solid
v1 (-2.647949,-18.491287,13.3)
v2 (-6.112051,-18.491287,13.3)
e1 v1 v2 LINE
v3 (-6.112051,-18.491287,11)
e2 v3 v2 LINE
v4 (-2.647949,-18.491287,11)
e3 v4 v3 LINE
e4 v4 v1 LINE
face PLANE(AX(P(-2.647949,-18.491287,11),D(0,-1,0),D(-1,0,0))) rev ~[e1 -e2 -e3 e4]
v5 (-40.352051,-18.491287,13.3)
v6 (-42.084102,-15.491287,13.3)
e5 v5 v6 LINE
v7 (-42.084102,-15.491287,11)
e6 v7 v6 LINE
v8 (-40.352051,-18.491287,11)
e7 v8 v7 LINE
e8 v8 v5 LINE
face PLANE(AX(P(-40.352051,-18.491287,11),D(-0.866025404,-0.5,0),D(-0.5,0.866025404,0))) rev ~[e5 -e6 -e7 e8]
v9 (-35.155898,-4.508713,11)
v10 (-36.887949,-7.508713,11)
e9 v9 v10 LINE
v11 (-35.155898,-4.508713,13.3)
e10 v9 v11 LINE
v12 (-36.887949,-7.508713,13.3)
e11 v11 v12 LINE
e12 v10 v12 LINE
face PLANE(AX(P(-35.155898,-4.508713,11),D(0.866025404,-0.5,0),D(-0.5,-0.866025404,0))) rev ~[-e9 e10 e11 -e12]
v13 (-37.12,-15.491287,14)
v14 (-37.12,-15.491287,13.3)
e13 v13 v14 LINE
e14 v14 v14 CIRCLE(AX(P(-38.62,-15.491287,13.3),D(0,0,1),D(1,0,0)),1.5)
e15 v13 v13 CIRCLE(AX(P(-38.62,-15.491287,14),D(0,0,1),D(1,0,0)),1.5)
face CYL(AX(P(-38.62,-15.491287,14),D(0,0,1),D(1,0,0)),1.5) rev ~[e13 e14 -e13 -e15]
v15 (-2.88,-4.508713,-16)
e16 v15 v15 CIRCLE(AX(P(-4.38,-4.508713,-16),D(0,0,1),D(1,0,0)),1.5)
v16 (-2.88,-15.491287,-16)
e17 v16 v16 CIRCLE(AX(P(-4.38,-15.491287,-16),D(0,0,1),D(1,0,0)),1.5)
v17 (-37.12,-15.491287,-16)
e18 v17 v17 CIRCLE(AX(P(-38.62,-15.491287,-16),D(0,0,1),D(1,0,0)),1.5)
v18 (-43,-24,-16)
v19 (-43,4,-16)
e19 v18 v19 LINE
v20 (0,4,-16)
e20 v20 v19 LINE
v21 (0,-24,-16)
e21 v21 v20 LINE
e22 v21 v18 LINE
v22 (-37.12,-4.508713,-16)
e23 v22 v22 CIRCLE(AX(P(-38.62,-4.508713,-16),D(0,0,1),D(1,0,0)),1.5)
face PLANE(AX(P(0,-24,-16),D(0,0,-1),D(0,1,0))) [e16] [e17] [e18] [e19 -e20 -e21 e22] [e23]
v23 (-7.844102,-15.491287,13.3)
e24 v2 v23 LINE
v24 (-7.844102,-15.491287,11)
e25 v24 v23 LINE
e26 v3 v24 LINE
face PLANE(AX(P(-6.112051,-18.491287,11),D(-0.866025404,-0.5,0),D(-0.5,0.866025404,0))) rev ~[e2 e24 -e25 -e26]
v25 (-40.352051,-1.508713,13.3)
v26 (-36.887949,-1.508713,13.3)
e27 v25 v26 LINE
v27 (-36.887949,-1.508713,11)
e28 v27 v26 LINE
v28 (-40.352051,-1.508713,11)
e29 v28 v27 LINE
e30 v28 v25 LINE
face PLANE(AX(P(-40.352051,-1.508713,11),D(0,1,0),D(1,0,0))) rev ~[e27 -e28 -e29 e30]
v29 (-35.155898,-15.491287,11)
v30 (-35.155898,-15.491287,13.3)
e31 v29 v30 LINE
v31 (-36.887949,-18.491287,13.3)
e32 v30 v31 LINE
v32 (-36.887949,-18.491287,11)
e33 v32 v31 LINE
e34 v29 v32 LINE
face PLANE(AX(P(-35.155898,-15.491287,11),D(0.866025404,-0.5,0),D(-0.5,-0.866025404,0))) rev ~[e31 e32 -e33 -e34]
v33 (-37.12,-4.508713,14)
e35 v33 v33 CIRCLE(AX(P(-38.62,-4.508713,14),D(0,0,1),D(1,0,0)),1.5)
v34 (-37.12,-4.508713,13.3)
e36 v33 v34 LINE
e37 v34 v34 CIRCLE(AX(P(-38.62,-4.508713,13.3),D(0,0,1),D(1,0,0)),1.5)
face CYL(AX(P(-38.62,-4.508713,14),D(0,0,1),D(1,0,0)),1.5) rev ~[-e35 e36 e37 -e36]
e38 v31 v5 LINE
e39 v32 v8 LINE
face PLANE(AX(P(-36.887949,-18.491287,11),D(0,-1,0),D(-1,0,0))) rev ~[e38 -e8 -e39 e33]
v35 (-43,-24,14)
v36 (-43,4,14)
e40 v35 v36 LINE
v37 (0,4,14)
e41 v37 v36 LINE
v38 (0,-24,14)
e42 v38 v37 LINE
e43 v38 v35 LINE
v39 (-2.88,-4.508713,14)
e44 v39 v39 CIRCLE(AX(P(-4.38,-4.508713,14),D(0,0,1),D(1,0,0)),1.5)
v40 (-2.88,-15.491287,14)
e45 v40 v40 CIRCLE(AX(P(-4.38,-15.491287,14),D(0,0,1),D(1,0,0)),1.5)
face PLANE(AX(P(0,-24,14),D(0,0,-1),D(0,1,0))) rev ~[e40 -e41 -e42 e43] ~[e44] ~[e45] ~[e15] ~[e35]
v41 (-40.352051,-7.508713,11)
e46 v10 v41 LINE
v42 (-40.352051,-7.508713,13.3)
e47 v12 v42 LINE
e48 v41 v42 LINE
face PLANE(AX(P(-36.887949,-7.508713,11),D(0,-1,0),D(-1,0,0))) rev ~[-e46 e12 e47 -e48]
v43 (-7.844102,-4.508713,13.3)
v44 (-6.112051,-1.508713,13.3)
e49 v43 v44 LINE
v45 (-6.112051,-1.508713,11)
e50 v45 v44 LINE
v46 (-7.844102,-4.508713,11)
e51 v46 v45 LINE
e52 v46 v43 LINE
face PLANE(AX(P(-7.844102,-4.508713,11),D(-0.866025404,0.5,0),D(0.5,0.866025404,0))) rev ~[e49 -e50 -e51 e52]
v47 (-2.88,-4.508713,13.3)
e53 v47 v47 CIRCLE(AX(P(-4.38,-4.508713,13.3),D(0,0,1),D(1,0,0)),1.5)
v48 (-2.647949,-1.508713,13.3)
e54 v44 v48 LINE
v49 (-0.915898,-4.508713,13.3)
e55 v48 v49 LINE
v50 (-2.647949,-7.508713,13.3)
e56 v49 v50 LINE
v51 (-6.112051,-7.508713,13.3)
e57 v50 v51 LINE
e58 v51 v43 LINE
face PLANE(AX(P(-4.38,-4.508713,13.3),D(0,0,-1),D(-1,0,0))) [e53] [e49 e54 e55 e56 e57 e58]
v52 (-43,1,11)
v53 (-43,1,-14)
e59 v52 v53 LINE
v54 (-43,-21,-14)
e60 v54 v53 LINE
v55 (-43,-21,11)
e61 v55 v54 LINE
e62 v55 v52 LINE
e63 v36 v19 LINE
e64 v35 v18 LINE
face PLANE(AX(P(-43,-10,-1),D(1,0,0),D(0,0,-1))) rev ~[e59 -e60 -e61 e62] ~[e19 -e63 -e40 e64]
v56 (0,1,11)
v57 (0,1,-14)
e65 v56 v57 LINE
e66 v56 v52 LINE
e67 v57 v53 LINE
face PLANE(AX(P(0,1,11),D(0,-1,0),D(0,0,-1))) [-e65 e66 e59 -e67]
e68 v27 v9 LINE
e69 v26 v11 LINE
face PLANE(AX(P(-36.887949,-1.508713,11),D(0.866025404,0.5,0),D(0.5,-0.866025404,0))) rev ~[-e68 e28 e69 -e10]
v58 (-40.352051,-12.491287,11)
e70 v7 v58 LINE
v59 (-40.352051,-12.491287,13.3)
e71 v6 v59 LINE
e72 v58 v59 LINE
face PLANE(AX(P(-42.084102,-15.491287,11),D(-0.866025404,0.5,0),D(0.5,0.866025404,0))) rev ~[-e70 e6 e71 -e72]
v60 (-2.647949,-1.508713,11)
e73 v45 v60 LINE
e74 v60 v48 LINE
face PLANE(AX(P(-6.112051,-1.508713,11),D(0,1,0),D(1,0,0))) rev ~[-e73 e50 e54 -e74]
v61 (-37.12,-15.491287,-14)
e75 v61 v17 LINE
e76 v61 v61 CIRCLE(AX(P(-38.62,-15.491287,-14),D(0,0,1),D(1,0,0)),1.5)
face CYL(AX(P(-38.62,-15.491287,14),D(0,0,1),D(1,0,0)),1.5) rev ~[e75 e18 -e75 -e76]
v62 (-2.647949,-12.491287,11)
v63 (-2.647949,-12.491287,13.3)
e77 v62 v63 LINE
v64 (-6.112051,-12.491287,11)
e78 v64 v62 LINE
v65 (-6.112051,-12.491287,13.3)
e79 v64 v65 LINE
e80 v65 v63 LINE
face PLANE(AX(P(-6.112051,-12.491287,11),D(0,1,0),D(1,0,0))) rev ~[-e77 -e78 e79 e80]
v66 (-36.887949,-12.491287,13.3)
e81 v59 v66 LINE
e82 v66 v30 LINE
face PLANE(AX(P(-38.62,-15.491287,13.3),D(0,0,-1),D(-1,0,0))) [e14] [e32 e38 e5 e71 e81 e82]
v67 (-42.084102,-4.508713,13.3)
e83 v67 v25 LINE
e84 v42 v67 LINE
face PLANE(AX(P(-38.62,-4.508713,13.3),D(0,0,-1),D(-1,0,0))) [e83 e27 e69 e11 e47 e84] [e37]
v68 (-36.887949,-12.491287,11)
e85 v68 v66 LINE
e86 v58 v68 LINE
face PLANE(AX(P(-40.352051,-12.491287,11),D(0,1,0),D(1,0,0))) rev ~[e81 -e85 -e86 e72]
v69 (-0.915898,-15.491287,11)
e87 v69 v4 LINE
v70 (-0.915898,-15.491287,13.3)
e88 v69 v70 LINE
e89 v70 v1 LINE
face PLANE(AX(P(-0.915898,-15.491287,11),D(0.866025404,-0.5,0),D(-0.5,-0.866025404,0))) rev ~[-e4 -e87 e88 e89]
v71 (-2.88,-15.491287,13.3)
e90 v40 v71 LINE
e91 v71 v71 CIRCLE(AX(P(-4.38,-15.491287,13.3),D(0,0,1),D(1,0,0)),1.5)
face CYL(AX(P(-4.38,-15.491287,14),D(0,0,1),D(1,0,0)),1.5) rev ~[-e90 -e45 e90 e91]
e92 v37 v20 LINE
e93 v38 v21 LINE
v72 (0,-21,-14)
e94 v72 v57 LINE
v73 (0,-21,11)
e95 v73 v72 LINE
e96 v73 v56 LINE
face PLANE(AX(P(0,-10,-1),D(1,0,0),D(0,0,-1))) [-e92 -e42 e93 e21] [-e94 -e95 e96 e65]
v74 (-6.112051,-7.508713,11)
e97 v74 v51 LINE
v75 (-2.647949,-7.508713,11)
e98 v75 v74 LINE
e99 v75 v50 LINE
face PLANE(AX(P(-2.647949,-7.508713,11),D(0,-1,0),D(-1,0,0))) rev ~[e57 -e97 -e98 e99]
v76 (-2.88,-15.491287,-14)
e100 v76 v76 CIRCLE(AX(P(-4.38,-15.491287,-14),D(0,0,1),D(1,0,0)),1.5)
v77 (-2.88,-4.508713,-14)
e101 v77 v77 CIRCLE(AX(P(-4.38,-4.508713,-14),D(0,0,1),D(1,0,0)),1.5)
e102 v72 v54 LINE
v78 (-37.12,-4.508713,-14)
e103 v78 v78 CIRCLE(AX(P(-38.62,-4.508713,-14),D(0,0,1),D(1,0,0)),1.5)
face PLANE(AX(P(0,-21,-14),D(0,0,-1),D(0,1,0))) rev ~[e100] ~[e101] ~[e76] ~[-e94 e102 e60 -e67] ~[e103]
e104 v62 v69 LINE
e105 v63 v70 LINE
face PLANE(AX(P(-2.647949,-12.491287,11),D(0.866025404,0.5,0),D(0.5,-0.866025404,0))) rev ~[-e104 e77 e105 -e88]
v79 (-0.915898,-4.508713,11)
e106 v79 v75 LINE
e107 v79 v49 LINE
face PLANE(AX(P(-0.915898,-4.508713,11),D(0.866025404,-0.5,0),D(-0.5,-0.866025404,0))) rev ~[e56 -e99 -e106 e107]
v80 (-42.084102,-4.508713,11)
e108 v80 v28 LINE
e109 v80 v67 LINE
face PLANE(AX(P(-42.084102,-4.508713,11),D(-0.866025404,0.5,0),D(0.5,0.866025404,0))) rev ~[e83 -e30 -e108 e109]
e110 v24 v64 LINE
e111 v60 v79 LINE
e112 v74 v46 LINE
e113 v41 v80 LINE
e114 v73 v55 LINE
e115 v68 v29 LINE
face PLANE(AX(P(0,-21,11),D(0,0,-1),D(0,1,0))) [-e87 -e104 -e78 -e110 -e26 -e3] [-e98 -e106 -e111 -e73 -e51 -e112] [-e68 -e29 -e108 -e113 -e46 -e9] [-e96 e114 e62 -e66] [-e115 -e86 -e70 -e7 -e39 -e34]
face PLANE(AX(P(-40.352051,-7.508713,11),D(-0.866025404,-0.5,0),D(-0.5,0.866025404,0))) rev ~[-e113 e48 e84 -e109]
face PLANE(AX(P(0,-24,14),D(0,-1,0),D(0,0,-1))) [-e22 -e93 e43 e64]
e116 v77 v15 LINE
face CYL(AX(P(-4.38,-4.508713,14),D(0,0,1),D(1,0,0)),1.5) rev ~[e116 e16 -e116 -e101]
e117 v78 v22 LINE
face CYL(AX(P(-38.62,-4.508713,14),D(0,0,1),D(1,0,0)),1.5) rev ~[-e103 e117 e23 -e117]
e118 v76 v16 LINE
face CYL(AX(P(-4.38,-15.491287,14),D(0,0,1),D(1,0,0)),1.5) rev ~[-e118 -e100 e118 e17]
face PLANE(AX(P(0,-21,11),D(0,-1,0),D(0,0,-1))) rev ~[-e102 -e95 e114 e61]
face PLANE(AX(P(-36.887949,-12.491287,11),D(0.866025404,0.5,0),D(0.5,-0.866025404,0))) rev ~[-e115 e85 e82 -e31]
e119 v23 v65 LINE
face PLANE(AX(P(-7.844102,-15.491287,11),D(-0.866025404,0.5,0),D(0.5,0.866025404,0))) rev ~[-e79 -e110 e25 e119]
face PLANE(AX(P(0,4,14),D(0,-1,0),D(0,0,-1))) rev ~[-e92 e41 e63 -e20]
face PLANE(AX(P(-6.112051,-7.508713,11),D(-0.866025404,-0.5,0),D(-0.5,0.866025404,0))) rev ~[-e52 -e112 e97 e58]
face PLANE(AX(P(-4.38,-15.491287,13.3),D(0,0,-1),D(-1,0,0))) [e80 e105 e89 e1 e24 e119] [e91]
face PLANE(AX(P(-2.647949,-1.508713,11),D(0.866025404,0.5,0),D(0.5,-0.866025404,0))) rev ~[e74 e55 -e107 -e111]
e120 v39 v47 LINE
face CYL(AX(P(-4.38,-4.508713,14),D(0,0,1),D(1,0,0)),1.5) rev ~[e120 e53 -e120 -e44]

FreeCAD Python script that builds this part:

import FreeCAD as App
import Part
import Sketcher
from FreeCAD import Vector
Q = App.Units.Quantity


def add_polygon(sketch, points):
    """Adds a closed chain of lines whose ends are joined by coincident constraints."""
    first, n = sketch.GeometryCount, len(points)
    for a, b in zip(points, points[1:] + points[:1]):
        sketch.addGeometry(Part.LineSegment(App.Vector(*a, 0), App.Vector(*b, 0)), False)
    for i in range(n):
        sketch.addConstraint(Sketcher.Constraint("Coincident", first + i, 2, first + (i + 1) % n, 1))

doc = App.newDocument("Part")
params = doc.addObject("Spreadsheet::Sheet", "Params")
for row, (alias, value) in enumerate([
    ("sketch1_width", "28 mm"),
    ("sketch1_width2", "22 mm"),
    ("sketch1_height", "30 mm"),
    ("sketch1_height2", "25 mm"),
    ("pad1_length", "43 mm"),
    ("sketch2_diameter", "3 mm"),
    ("pocket2_length", "2.3 mm"),
], start=1):
    params.set(f"A{row}", alias)
    params.set(f"B{row}", "=" + value)
    params.setAlias(f"B{row}", alias)

body = doc.addObject("PartDesign::Body", "Body")

sketch1 = doc.addObject("Sketcher::SketchObject", "Sketch")
body.addObject(sketch1)
sketch1.AttachmentSupport = (doc.YZ_Plane, [""])
sketch1.MapMode = "FlatFace"
add_polygon(sketch1, [(4, 14), (-24, 14), (-24, -16), (4, -16)])
add_polygon(sketch1, [(-21, -14), (-21, 11), (1, 11), (1, -14)])
sketch1.addConstraint([
    Sketcher.Constraint("Horizontal", 0),
    Sketcher.Constraint("Vertical", 1),
    Sketcher.Constraint("Horizontal", 2),
    Sketcher.Constraint("Vertical", 3),
    Sketcher.Constraint("Vertical", 4),
    Sketcher.Constraint("Horizontal", 5),
    Sketcher.Constraint("Vertical", 6),
    Sketcher.Constraint("Horizontal", 7),
    Sketcher.Constraint("DistanceX", 0, 2, 0, 1, 28.0),
    Sketcher.Constraint("DistanceX", 5, 1, 5, 2, 22.0),
    Sketcher.Constraint("DistanceY", 1, 2, 1, 1, 30.0),
    Sketcher.Constraint("DistanceY", 4, 1, 4, 2, 25.0),
    Sketcher.Constraint("DistanceX", 0, 2, -1, 1, 24.0),
    Sketcher.Constraint("DistanceY", -1, 1, 0, 2, 14.0),
    Sketcher.Constraint("DistanceX", 4, 2, -1, 1, 21.0),
    Sketcher.Constraint("DistanceY", -1, 1, 4, 2, 11.0),
])
sketch1.setExpression("Constraints[16]", "Params.sketch1_width")
sketch1.setExpression("Constraints[17]", "Params.sketch1_width2")
sketch1.setExpression("Constraints[18]", "Params.sketch1_height")
sketch1.setExpression("Constraints[19]", "Params.sketch1_height2")
pad1 = doc.addObject("PartDesign::Pad", "Pad")
body.addObject(pad1)
pad1.Profile = sketch1
pad1.setExpression("Length", "Params.pad1_length")
pad1.Reversed = True

sketch2 = doc.addObject("Sketcher::SketchObject", "Sketch001")
body.addObject(sketch2)
sketch2.AttachmentSupport = (doc.XY_Plane, [""])
sketch2.MapMode = "FlatFace"
sketch2.AttachmentOffset = App.Placement(Vector(0, 0, 14), App.Rotation())
sketch2.addGeometry([
    Part.Circle(Vector(-38.6, -4.5, 0), Vector(0, 0, 1), 1.5),
    Part.Circle(Vector(-4.4, -4.5, 0), Vector(0, 0, 1), 1.5),
    Part.Circle(Vector(-4.4, -15.5, 0), Vector(0, 0, 1), 1.5),
    Part.Circle(Vector(-38.6, -15.5, 0), Vector(0, 0, 1), 1.5),
], False)
sketch2.addConstraint([
    Sketcher.Constraint("Equal", 0, 1),
    Sketcher.Constraint("Equal", 1, 2),
    Sketcher.Constraint("Equal", 2, 3),
    Sketcher.Constraint("Horizontal", 0, 3, 1, 3),
    Sketcher.Constraint("Horizontal", 2, 3, 3, 3),
    Sketcher.Constraint("Vertical", 1, 3, 2, 3),
    Sketcher.Constraint("Vertical", 0, 3, 3, 3),
    Sketcher.Constraint("Diameter", 0, 3.0),
    Sketcher.Constraint("DistanceX", 0, 3, -1, 1, 38.62),
    Sketcher.Constraint("DistanceX", 1, 3, -1, 1, 4.38),
    Sketcher.Constraint("DistanceY", 0, 3, -1, 1, 4.508713),
    Sketcher.Constraint("DistanceY", 2, 3, -1, 1, 15.491287),
])
sketch2.setExpression("Constraints[7]", "Params.sketch2_diameter")
pocket1 = doc.addObject("PartDesign::Pocket", "Pocket")
body.addObject(pocket1)
pocket1.Profile = sketch2
pocket1.Type = "ThroughAll"

sketch3 = doc.addObject("Sketcher::SketchObject", "Sketch002")
body.addObject(sketch3)
sketch3.AttachmentSupport = (doc.XY_Plane, [""])
sketch3.MapMode = "FlatFace"
sketch3.AttachmentOffset = App.Placement(Vector(0, 0, 11), App.Rotation())
add_polygon(sketch3, [(-42.1, -4.5), (-40.4, -1.5), (-36.9, -1.5), (-35.2, -4.5), (-36.9, -7.5), (-40.4, -7.5)])
add_polygon(sketch3, [(-7.8, -4.5), (-6.1, -1.5), (-2.6, -1.5), (-0.9, -4.5), (-2.6, -7.5), (-6.1, -7.5)])
add_polygon(sketch3, [(-7.8, -15.5), (-6.1, -12.5), (-2.6, -12.5), (-0.9, -15.5), (-2.6, -18.5), (-6.1, -18.5)])
add_polygon(sketch3, [(-42.1, -15.5), (-40.4, -12.5), (-36.9, -12.5), (-35.2, -15.5), (-36.9, -18.5), (-40.4, -18.5)])
sketch3.addConstraint([
    Sketcher.Constraint("Horizontal", 1),
    Sketcher.Constraint("Horizontal", 4),
    Sketcher.Constraint("Horizontal", 7),
    Sketcher.Constraint("Horizontal", 10),
    Sketcher.Constraint("Horizontal", 13),
    Sketcher.Constraint("Horizontal", 16),
    Sketcher.Constraint("Horizontal", 19),
    Sketcher.Constraint("Horizontal", 22),
    Sketcher.Constraint("Parallel", 0, 3),
    Sketcher.Constraint("Parallel", 2, 5),
    Sketcher.Constraint("Parallel", 3, 6),
    Sketcher.Constraint("Parallel", 5, 8),
    Sketcher.Constraint("Parallel", 6, 9),
    Sketcher.Constraint("Parallel", 8, 11),
    Sketcher.Constraint("Parallel", 9, 12),
    Sketcher.Constraint("Parallel", 11, 14),
    Sketcher.Constraint("Parallel", 12, 15),
    Sketcher.Constraint("Parallel", 14, 17),
    Sketcher.Constraint("Parallel", 15, 18),
    Sketcher.Constraint("Parallel", 17, 20),
    Sketcher.Constraint("Parallel", 18, 21),
    Sketcher.Constraint("Parallel", 20, 23),
    Sketcher.Constraint("Horizontal", 2, 2, 5, 2),
    Sketcher.Constraint("Horizontal", 1, 2, 6, 2),
    Sketcher.Constraint("Horizontal", 5, 2, 8, 2),
    Sketcher.Constraint("Horizontal", 4, 2, 9, 2),
    Sketcher.Constraint("Horizontal", 8, 2, 11, 2),
    Sketcher.Constraint("Horizontal", 14, 2, 17, 2),
    Sketcher.Constraint("Horizontal", 13, 2, 18, 2),
    Sketcher.Constraint("Horizontal", 17, 2, 20, 2),
    Sketcher.Constraint("Horizontal", 16, 2, 21, 2),
    Sketcher.Constraint("Horizontal", 20, 2, 23, 2),
    Sketcher.Constraint("Vertical", 1, 2, 3, 2),
    Sketcher.Constraint("Vertical", 0, 2, 4, 2),
    Sketcher.Constraint("Vertical", 10, 2, 12, 2),
    Sketcher.Constraint("Vertical", 9, 2, 13, 2),
    Sketcher.Constraint("Vertical", 8, 2, 14, 2),
    Sketcher.Constraint("Vertical", 13, 2, 15, 2),
    Sketcher.Constraint("Vertical", 4, 2, 18, 2),
    Sketcher.Constraint("Vertical", 3, 2, 19, 2),
    Sketcher.Constraint("Equal", 4, 7),
    Sketcher.Constraint("Angle", 0, Q("60 deg")),
    Sketcher.Constraint("DistanceY", 2, 2, 1, 2, 3.0),
    Sketcher.Constraint("DistanceX", 0, 2, 6, 2, 34.24),
    Sketcher.Constraint("DistanceX", 1, 1, 1, 2, 3.464102),
    Sketcher.Constraint("DistanceX", 2, 2, -1, 1, 35.155898),
    Sketcher.Constraint("DistanceY", 0, 2, -1, 1, 1.508713),
    Sketcher.Constraint("DistanceY", 12, 2, -1, 1, 12.491287),
])
pocket2 = doc.addObject("PartDesign::Pocket", "Pocket001")
body.addObject(pocket2)
pocket2.Profile = sketch3
pocket2.setExpression("Length", "Params.pocket2_length")
pocket2.Reversed = True

doc.recompute()
